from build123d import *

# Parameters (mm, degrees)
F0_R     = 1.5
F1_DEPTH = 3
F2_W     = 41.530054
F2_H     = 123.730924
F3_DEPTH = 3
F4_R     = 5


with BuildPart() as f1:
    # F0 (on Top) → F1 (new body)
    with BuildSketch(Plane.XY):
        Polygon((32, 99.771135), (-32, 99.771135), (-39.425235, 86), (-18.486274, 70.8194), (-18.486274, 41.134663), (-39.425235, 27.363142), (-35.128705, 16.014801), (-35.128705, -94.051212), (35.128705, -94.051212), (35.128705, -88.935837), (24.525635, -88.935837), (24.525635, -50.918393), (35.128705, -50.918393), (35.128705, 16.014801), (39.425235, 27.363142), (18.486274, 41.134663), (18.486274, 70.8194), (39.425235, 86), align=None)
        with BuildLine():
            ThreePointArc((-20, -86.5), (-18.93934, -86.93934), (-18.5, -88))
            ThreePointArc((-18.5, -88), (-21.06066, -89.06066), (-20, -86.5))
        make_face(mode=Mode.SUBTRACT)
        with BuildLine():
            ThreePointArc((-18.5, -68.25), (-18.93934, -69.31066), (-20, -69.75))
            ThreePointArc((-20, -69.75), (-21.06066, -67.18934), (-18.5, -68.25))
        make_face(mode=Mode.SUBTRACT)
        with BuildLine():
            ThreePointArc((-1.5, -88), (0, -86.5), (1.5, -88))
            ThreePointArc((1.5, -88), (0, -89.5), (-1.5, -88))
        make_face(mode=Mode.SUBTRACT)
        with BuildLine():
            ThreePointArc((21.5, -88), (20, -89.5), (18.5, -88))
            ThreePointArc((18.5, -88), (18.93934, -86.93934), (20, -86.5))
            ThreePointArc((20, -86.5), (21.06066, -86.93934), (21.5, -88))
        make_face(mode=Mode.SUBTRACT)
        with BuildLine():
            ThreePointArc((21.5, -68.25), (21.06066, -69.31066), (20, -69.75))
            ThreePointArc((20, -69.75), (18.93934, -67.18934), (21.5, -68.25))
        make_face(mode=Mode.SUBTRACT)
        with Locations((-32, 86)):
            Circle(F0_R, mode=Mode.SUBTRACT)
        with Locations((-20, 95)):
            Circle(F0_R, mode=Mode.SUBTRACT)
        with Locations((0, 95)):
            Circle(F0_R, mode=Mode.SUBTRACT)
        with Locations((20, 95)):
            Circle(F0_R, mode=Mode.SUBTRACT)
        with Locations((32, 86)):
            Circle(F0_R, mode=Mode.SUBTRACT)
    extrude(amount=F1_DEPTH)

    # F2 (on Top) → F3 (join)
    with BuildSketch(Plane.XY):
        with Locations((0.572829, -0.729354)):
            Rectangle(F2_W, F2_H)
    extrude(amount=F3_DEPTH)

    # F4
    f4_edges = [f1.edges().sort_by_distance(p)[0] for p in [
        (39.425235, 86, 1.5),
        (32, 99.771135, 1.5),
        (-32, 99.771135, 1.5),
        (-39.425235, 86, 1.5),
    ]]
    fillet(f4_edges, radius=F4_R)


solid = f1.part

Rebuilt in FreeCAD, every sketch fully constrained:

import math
import FreeCAD as App
import Part
import Sketcher


def edges_at(feature, points):
    """Names of the edges that pass closest to the given points."""
    edges = feature.Shape.Edges
    near = lambda p: min(range(len(edges)), key=lambda i: edges[i].distToShape(Part.Vertex(*p))[0])
    return sorted({f"Edge{near(p) + 1}" for p in points})


def add_polygon(sketch, points):
    """Adds a closed chain of lines whose ends are joined by coincident constraints."""
    first, n = sketch.GeometryCount, len(points)
    for a, b in zip(points, points[1:] + points[:1]):
        sketch.addGeometry(Part.LineSegment(App.Vector(*a, 0), App.Vector(*b, 0)), False)
    for i in range(n):
        sketch.addConstraint(Sketcher.Constraint("Coincident", first + i, 2, first + (i + 1) % n, 1))

doc = App.newDocument("Part")
body = doc.addObject("PartDesign::Body", "Body")

sketch1 = doc.addObject("Sketcher::SketchObject", "Sketch")
body.addObject(sketch1)
sketch1.AttachmentSupport = (doc.XY_Plane, [""])
sketch1.MapMode = "FlatFace"
add_polygon(sketch1, [(32, 99.8), (-32, 99.8), (-39.4, 86), (-18.5, 70.8), (-18.5, 41.1), (-39.4, 27.4), (-35.1, 16), (-35.1, -94.1), (35.1, -94.1), (35.1, -88.9), (24.5, -88.9), (24.5, -50.9), (35.1, -50.9), (35.1, 16), (39.4, 27.4), (18.5, 41.1), (18.5, 70.8), (39.4, 86)])
sketch1.addGeometry(Part.ArcOfCircle(Part.Circle(App.Vector(-20, -88, 0), App.Vector(0, 0, 1), 1.5), math.radians(90), math.radians(360)), False)
sketch1.addGeometry(Part.ArcOfCircle(Part.Circle(App.Vector(-20, -88, 0), App.Vector(0, 0, 1), 1.5), math.radians(0), math.radians(90)), False)
sketch1.addGeometry(Part.ArcOfCircle(Part.Circle(App.Vector(-20, -68.3, 0), App.Vector(0, 0, 1), 1.5), math.radians(0), math.radians(270)), False)
sketch1.addGeometry(Part.ArcOfCircle(Part.Circle(App.Vector(-20, -68.2, 0), App.Vector(0, 0, 1), 1.5), math.radians(-90), math.radians(0)), False)
sketch1.addGeometry(Part.Circle(App.Vector(0, -88, 0), App.Vector(0, 0, 1), 1.5), False)
sketch1.addGeometry(Part.ArcOfCircle(Part.Circle(App.Vector(20, -88, 0), App.Vector(0, 0, 1), 1.5), math.radians(0), math.radians(90)), False)
sketch1.addGeometry(Part.ArcOfCircle(Part.Circle(App.Vector(20, -88, 0), App.Vector(0, 0, 1), 1.5), math.radians(180), math.radians(360)), False)
sketch1.addGeometry(Part.ArcOfCircle(Part.Circle(App.Vector(20, -88, 0), App.Vector(0, 0, 1), 1.5), math.radians(90), math.radians(180)), False)
sketch1.addGeometry(Part.ArcOfCircle(Part.Circle(App.Vector(20, -68.3, 0), App.Vector(0, 0, 1), 1.5), math.radians(0), math.radians(270)), False)
sketch1.addGeometry(Part.ArcOfCircle(Part.Circle(App.Vector(20, -68.2, 0), App.Vector(0, 0, 1), 1.5), math.radians(-90), math.radians(0)), False)
sketch1.addGeometry(Part.Circle(App.Vector(-32, 86, 0), App.Vector(0, 0, 1), 1.5), False)
sketch1.addGeometry(Part.Circle(App.Vector(-20, 95, 0), App.Vector(0, 0, 1), 1.5), False)
sketch1.addGeometry(Part.Circle(App.Vector(0, 95, 0), App.Vector(0, 0, 1), 1.5), False)
sketch1.addGeometry(Part.Circle(App.Vector(20, 95, 0), App.Vector(0, 0, 1), 1.5), False)
sketch1.addGeometry(Part.Circle(App.Vector(32, 86, 0), App.Vector(0, 0, 1), 1.5), False)
sketch1.addConstraint(Sketcher.Constraint("Tangent", 18, 1, 19, 2))
sketch1.addConstraint(Sketcher.Constraint("Coincident", 19, 1, 18, 2))
sketch1.addConstraint(Sketcher.Constraint("Tangent", 20, 1, 21, 2))
sketch1.addConstraint(Sketcher.Constraint("Coincident", 21, 1, 20, 2))
sketch1.addConstraint(Sketcher.Constraint("Tangent", 23, 1, 24, 2))
sketch1.addConstraint(Sketcher.Constraint("Tangent", 24, 1, 25, 2))
sketch1.addConstraint(Sketcher.Constraint("Tangent", 25, 1, 23, 2))
sketch1.addConstraint(Sketcher.Constraint("Tangent", 26, 1, 27, 2))
sketch1.addConstraint(Sketcher.Constraint("Coincident", 27, 1, 26, 2))
sketch1.addConstraint(Sketcher.Constraint("Horizontal", 0))
sketch1.addConstraint(Sketcher.Constraint("Vertical", 3))
sketch1.addConstraint(Sketcher.Constraint("Vertical", 6))
sketch1.addConstraint(Sketcher.Constraint("Horizontal", 7))
sketch1.addConstraint(Sketcher.Constraint("Vertical", 8))
sketch1.addConstraint(Sketcher.Constraint("Horizontal", 9))
sketch1.addConstraint(Sketcher.Constraint("Vertical", 10))
sketch1.addConstraint(Sketcher.Constraint("Horizontal", 11))
sketch1.addConstraint(Sketcher.Constraint("Vertical", 12))
sketch1.addConstraint(Sketcher.Constraint("Vertical", 15))
sketch1.addConstraint(Sketcher.Constraint("Equal", 19, 20))
sketch1.addConstraint(Sketcher.Constraint("Equal", 21, 22))
sketch1.addConstraint(Sketcher.Constraint("Equal", 22, 23))
sketch1.addConstraint(Sketcher.Constraint("Equal", 25, 26))
sketch1.addConstraint(Sketcher.Constraint("Equal", 27, 28))
sketch1.addConstraint(Sketcher.Constraint("Equal", 28, 29))
sketch1.addConstraint(Sketcher.Constraint("Equal", 29, 30))
sketch1.addConstraint(Sketcher.Constraint("Equal", 30, 31))
sketch1.addConstraint(Sketcher.Constraint("Equal", 31, 32))
sketch1.addConstraint(Sketcher.Constraint("Symmetric", 18, 3, 23, 3, -2))
sketch1.addConstraint(Sketcher.Constraint("Symmetric", 20, 3, 26, 3, -2))
sketch1.addConstraint(Sketcher.Constraint("Symmetric", 29, 3, 31, 3, -2))
sketch1.addConstraint(Sketcher.Constraint("Symmetric", 28, 3, 32, 3, -2))
sketch1.addConstraint(Sketcher.Constraint("Symmetric", 5, 2, 12, 2, -2))
sketch1.addConstraint(Sketcher.Constraint("Symmetric", 4, 2, 13, 2, -2))
sketch1.addConstraint(Sketcher.Constraint("Symmetric", 3, 2, 14, 2, -2))
sketch1.addConstraint(Sketcher.Constraint("Symmetric", 1, 2, 16, 2, -2))
sketch1.addConstraint(Sketcher.Constraint("PointOnObject", 22, 3, -2))
sketch1.addConstraint(Sketcher.Constraint("PointOnObject", 30, 3, -2))
sketch1.addConstraint(Sketcher.Constraint("Horizontal", 19, 3, 22, 3))
sketch1.addConstraint(Sketcher.Constraint("Horizontal", 29, 3, 30, 3))
sketch1.addConstraint(Sketcher.Constraint("Horizontal", 32, 3, 1, 2))
sketch1.addConstraint(Sketcher.Constraint("Horizontal", 2, 2, 15, 2))
sketch1.addConstraint(Sketcher.Constraint("Horizontal", 25, 3, 19, 1))
sketch1.addConstraint(Sketcher.Constraint("Horizontal", 27, 3, 20, 1))
sketch1.addConstraint(Sketcher.Constraint("Horizontal", 19, 1, 23, 1))
sketch1.addConstraint(Sketcher.Constraint("Horizontal", 23, 1, 24, 1))
sketch1.addConstraint(Sketcher.Constraint("Horizontal", 20, 1, 26, 1))
sketch1.addConstraint(Sketcher.Constraint("Vertical", 19, 3, 20, 3))
sketch1.addConstraint(Sketcher.Constraint("Vertical", 21, 3, 29, 3))
sketch1.addConstraint(Sketcher.Constraint("Vertical", 28, 3, 0, 2))
sketch1.addConstraint(Sketcher.Constraint("Vertical", 1, 2, 4, 2))
sketch1.addConstraint(Sketcher.Constraint("Vertical", 8, 2, 11, 2))
sketch1.addConstraint(Sketcher.Constraint("Vertical", 32, 3, 17, 2))
sketch1.addConstraint(Sketcher.Constraint("Vertical", 29, 3, 18, 1))
sketch1.addConstraint(Sketcher.Constraint("Vertical", 18, 1, 21, 1))
sketch1.addConstraint(Sketcher.Constraint("Vertical", 31, 3, 25, 1))
sketch1.addConstraint(Sketcher.Constraint("Vertical", 25, 1, 27, 1))
sketch1.addConstraint(Sketcher.Constraint("Diameter", 22, 3.0))
sketch1.addConstraint(Sketcher.Constraint("DistanceX", 0, 2, 0, 1, 64.0))
sketch1.addConstraint(Sketcher.Constraint("DistanceX", 18, 3, -1, 1, 20.0))
sketch1.addConstraint(Sketcher.Constraint("DistanceY", 18, 3, -1, 1, 88.0))
sketch1.addConstraint(Sketcher.Constraint("DistanceY", -1, 1, 28, 3, 86.0))
sketch1.addConstraint(Sketcher.Constraint("DistanceY", -1, 1, 29, 3, 95.0))
sketch1.addConstraint(Sketcher.Constraint("DistanceY", 20, 3, -1, 1, 68.25))
sketch1.addConstraint(Sketcher.Constraint("DistanceX", 7, 1, 7, 2, 70.25741))
sketch1.addConstraint(Sketcher.Constraint("DistanceX", 9, 2, 9, 1, 10.60307))
sketch1.addConstraint(Sketcher.Constraint("DistanceY", -1, 1, 2, 2, 70.8194))
sketch1.addConstraint(Sketcher.Constraint("DistanceY", -1, 1, 5, 2, 16.014801))
sketch1.addConstraint(Sketcher.Constraint("Distance", 1, 15.645391))
sketch1.addConstraint(Sketcher.Constraint("Distance", 2, 25.862921))
sketch1.addConstraint(Sketcher.Constraint("Distance", 4, 25.061821))
sketch1.addConstraint(Sketcher.Constraint("DistanceY", 3, 2, 3, 1, 29.684737))
sketch1.addConstraint(Sketcher.Constraint("DistanceY", 6, 2, 6, 1, 110.066013))
sketch1.addConstraint(Sketcher.Constraint("DistanceY", 8, 1, 8, 2, 5.115375))
sketch1.addConstraint(Sketcher.Constraint("DistanceY", 10, 1, 10, 2, 38.017444))
sketch1.addConstraint(Sketcher.Constraint("DistanceX", 4, 2, 5, 2, 4.29653))
pad1 = doc.addObject("PartDesign::Pad", "Pad")
body.addObject(pad1)
pad1.Profile = sketch1
pad1.Length = 3

sketch2 = doc.addObject("Sketcher::SketchObject", "Sketch001")
body.addObject(sketch2)
sketch2.AttachmentSupport = (doc.XY_Plane, [""])
sketch2.MapMode = "FlatFace"
add_polygon(sketch2, [(-20, 61), (-20, -63), (21, -63), (21, 61)])
sketch2.addConstraint(Sketcher.Constraint("Vertical", 0))
sketch2.addConstraint(Sketcher.Constraint("Horizontal", 1))
sketch2.addConstraint(Sketcher.Constraint("Vertical", 2))
sketch2.addConstraint(Sketcher.Constraint("Horizontal", 3))
sketch2.addConstraint(Sketcher.Constraint("DistanceX", 0, 2, -1, 1, 20.192198))
sketch2.addConstraint(Sketcher.Constraint("DistanceX", 1, 1, 1, 2, 41.530054))
sketch2.addConstraint(Sketcher.Constraint("DistanceY", 0, 2, 0, 1, 123.730924))
sketch2.addConstraint(Sketcher.Constraint("DistanceY", 0, 2, -1, 1, 62.594816))
pad2 = doc.addObject("PartDesign::Pad", "Pad001")
body.addObject(pad2)
pad2.Profile = sketch2
pad2.Length = 3
doc.recompute()

fillet = doc.addObject("PartDesign::Fillet", "Fillet")
body.addObject(fillet)
fillet.Base = (pad2, edges_at(pad2, [
    (39.425, 86, 1.5),
    (32, 99.771, 1.5),
    (-32, 99.771, 1.5),
    (-39.425, 86, 1.5),
]))
fillet.Radius = 5

doc.recompute()
